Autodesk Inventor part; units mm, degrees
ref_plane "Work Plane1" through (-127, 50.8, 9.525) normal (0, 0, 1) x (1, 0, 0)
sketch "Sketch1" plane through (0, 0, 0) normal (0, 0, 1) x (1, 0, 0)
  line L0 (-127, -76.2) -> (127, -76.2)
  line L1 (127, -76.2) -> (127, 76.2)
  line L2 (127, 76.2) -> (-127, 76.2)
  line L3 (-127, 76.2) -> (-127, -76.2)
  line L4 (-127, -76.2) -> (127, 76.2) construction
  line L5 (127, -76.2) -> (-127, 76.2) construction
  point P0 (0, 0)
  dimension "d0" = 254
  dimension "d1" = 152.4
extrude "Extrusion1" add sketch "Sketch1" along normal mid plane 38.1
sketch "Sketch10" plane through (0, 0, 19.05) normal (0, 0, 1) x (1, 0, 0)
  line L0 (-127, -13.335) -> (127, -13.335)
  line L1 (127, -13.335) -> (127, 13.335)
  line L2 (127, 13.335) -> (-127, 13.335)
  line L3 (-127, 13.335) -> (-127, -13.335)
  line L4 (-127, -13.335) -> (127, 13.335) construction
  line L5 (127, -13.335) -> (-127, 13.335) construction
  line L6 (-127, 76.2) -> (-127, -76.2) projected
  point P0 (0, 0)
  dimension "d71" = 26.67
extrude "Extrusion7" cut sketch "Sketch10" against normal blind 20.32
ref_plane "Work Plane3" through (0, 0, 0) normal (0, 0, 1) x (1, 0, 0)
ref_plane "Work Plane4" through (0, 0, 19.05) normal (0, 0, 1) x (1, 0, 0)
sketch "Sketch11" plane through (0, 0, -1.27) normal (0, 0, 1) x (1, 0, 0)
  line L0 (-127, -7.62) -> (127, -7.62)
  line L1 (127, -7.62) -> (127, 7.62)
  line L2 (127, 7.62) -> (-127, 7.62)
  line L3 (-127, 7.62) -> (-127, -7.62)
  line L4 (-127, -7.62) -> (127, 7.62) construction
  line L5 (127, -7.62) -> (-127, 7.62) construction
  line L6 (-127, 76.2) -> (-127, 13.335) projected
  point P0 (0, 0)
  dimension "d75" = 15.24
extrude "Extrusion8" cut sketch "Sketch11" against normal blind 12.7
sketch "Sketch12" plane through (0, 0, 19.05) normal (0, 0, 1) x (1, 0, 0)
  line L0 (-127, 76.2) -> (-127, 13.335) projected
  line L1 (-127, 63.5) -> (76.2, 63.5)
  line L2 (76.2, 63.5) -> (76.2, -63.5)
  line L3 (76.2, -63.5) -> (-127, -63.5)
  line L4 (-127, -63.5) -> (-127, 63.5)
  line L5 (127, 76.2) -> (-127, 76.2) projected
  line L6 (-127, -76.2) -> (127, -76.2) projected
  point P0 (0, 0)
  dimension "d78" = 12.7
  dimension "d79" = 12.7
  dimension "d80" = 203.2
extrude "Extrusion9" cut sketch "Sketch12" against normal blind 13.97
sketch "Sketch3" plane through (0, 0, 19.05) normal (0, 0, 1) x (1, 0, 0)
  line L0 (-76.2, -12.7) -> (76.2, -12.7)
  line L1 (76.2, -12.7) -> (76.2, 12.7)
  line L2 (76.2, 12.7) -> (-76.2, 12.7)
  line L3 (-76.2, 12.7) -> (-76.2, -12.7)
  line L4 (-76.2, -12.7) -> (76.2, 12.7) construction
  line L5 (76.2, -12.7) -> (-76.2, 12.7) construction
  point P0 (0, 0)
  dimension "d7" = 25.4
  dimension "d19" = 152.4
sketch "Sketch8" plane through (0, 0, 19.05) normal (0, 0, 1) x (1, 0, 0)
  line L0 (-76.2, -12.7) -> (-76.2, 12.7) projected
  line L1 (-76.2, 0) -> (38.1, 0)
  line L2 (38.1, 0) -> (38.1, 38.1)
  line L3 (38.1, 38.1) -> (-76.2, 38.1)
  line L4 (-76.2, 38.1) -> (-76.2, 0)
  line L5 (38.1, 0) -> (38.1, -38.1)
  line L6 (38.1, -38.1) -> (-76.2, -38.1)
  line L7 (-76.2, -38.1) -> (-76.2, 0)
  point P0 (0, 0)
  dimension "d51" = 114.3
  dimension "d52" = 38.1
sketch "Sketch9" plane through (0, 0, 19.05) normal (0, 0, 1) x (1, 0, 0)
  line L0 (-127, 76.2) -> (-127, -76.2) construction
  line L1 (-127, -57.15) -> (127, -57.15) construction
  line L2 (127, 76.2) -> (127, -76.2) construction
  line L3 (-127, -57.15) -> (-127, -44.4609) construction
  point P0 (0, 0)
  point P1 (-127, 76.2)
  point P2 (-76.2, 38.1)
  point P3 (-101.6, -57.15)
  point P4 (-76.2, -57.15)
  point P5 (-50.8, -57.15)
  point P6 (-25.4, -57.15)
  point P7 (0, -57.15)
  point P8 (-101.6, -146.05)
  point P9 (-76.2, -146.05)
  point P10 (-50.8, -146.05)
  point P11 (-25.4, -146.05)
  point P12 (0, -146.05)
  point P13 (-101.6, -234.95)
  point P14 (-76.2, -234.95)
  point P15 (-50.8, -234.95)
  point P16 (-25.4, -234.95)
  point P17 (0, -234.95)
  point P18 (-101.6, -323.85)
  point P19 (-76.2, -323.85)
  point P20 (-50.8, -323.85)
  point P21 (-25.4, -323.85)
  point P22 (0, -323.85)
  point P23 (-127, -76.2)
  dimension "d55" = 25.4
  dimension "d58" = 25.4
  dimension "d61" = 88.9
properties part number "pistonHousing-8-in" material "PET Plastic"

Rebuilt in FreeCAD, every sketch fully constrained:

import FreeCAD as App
import Part
import Sketcher

V = App.Vector
Q = App.Units.Quantity

doc = App.newDocument("Part")
body = doc.addObject("PartDesign::Body", "Body")

# Sketch on XY plane
sketch1 = doc.addObject("Sketcher::SketchObject", "Sketch")
body.addObject(sketch1)
sketch1.AttachmentSupport = (doc.XY_Plane, [""])
sketch1.MapMode = "FlatFace"
sketch1.addGeometry([
    Part.LineSegment(V(-127, 76, 0), V(-127, -76, 0)),
    Part.LineSegment(V(-127, -76, 0), V(127, -76, 0)),
    Part.LineSegment(V(127, -76, 0), V(127, 76, 0)),
    Part.LineSegment(V(127, 76, 0), V(-127, 76, 0)),
], False)
sketch1.addConstraint([
    Sketcher.Constraint("Coincident", 0, 2, 1, 1),
    Sketcher.Constraint("Coincident", 1, 2, 2, 1),
    Sketcher.Constraint("Coincident", 2, 2, 3, 1),
    Sketcher.Constraint("Coincident", 3, 2, 0, 1),
    Sketcher.Constraint("Vertical", 0),
    Sketcher.Constraint("Horizontal", 1),
    Sketcher.Constraint("Vertical", 2),
    Sketcher.Constraint("Horizontal", 3),
    Sketcher.Constraint("Symmetric", 0, 2, 2, 2, -1, 1),
    Sketcher.Constraint("DistanceX", 1, 1, 1, 2, Q("10 in")),
    Sketcher.Constraint("DistanceY", 0, 2, 0, 1, Q("6 in")),
])
pad1 = doc.addObject("PartDesign::Pad", "Pad")
body.addObject(pad1)
pad1.Profile = sketch1
pad1.Length = Q("1.5 in")
pad1.Midplane = True

# Sketch on XY plane
sketch2 = doc.addObject("Sketcher::SketchObject", "Sketch001")
body.addObject(sketch2)
sketch2.AttachmentSupport = (doc.XY_Plane, [""])
sketch2.MapMode = "FlatFace"
sketch2.AttachmentOffset = App.Placement(V(0, 0, 0.75 * 25.4), App.Rotation())
sketch2.addGeometry([
    Part.LineSegment(V(-127, 13, 0), V(-127, -13, 0)),
    Part.LineSegment(V(-127, -13, 0), V(127, -13, 0)),
    Part.LineSegment(V(127, -13, 0), V(127, 13, 0)),
    Part.LineSegment(V(127, 13, 0), V(-127, 13, 0)),
], False)
sketch2.addConstraint([
    Sketcher.Constraint("Coincident", 0, 2, 1, 1),
    Sketcher.Constraint("Coincident", 1, 2, 2, 1),
    Sketcher.Constraint("Coincident", 2, 2, 3, 1),
    Sketcher.Constraint("Coincident", 3, 2, 0, 1),
    Sketcher.Constraint("Vertical", 0),
    Sketcher.Constraint("Horizontal", 1),
    Sketcher.Constraint("Vertical", 2),
    Sketcher.Constraint("Horizontal", 3),
    Sketcher.Constraint("Symmetric", 0, 2, 2, 2, -1, 1),
    Sketcher.Constraint("DistanceY", 0, 2, 0, 1, Q("1.05 in")),
    Sketcher.Constraint("DistanceX", 1, 1, 1, 2, Q("10 in")),
])
pocket1 = doc.addObject("PartDesign::Pocket", "Pocket")
body.addObject(pocket1)
pocket1.Profile = sketch2
pocket1.Length = Q("0.8 in")

# Sketch on XY plane
sketch3 = doc.addObject("Sketcher::SketchObject", "Sketch002")
body.addObject(sketch3)
sketch3.AttachmentSupport = (doc.XY_Plane, [""])
sketch3.MapMode = "FlatFace"
sketch3.AttachmentOffset = App.Placement(V(0, 0, -0.05 * 25.4), App.Rotation())
sketch3.addGeometry([
    Part.LineSegment(V(-127, 8, 0), V(-127, -8, 0)),
    Part.LineSegment(V(-127, -8, 0), V(127, -8, 0)),
    Part.LineSegment(V(127, -8, 0), V(127, 8, 0)),
    Part.LineSegment(V(127, 8, 0), V(-127, 8, 0)),
], False)
sketch3.addConstraint([
    Sketcher.Constraint("Coincident", 0, 2, 1, 1),
    Sketcher.Constraint("Coincident", 1, 2, 2, 1),
    Sketcher.Constraint("Coincident", 2, 2, 3, 1),
    Sketcher.Constraint("Coincident", 3, 2, 0, 1),
    Sketcher.Constraint("Vertical", 0),
    Sketcher.Constraint("Horizontal", 1),
    Sketcher.Constraint("Vertical", 2),
    Sketcher.Constraint("Horizontal", 3),
    Sketcher.Constraint("Symmetric", 0, 2, 2, 2, -1, 1),
    Sketcher.Constraint("DistanceY", 0, 2, 0, 1, Q("0.6 in")),
    Sketcher.Constraint("DistanceX", 1, 1, 1, 2, Q("10 in")),
])
pocket2 = doc.addObject("PartDesign::Pocket", "Pocket001")
body.addObject(pocket2)
pocket2.Profile = sketch3
pocket2.Length = Q("0.5 in")

# Sketch on XY plane
sketch4 = doc.addObject("Sketcher::SketchObject", "Sketch003")
body.addObject(sketch4)
sketch4.AttachmentSupport = (doc.XY_Plane, [""])
sketch4.MapMode = "FlatFace"
sketch4.AttachmentOffset = App.Placement(V(0, 0, 0.75 * 25.4), App.Rotation())
sketch4.addGeometry([
    Part.LineSegment(V(76, 64, 0), V(-127, 64, 0)),
    Part.LineSegment(V(-127, 64, 0), V(-127, -64, 0)),
    Part.LineSegment(V(-127, -64, 0), V(76, -64, 0)),
    Part.LineSegment(V(76, -64, 0), V(76, 64, 0)),
], False)
sketch4.addConstraint([
    Sketcher.Constraint("Coincident", 0, 2, 1, 1),
    Sketcher.Constraint("Coincident", 1, 2, 2, 1),
    Sketcher.Constraint("Coincident", 2, 2, 3, 1),
    Sketcher.Constraint("Coincident", 3, 2, 0, 1),
    Sketcher.Constraint("Horizontal", 0),
    Sketcher.Constraint("Vertical", 1),
    Sketcher.Constraint("Horizontal", 2),
    Sketcher.Constraint("Vertical", 3),
    Sketcher.Constraint("DistanceX", 0, 2, 0, 1, Q("8 in")),
    Sketcher.Constraint("DistanceY", 1, 2, 1, 1, Q("5 in")),
    Sketcher.Constraint("DistanceX", 0, 2, -1, 1, Q("5 in")),
    Sketcher.Constraint("DistanceY", -1, 1, 0, 2, Q("2.5 in")),
])
pocket3 = doc.addObject("PartDesign::Pocket", "Pocket002")
body.addObject(pocket3)
pocket3.Profile = sketch4
pocket3.Length = Q("0.55 in")

doc.recompute()
